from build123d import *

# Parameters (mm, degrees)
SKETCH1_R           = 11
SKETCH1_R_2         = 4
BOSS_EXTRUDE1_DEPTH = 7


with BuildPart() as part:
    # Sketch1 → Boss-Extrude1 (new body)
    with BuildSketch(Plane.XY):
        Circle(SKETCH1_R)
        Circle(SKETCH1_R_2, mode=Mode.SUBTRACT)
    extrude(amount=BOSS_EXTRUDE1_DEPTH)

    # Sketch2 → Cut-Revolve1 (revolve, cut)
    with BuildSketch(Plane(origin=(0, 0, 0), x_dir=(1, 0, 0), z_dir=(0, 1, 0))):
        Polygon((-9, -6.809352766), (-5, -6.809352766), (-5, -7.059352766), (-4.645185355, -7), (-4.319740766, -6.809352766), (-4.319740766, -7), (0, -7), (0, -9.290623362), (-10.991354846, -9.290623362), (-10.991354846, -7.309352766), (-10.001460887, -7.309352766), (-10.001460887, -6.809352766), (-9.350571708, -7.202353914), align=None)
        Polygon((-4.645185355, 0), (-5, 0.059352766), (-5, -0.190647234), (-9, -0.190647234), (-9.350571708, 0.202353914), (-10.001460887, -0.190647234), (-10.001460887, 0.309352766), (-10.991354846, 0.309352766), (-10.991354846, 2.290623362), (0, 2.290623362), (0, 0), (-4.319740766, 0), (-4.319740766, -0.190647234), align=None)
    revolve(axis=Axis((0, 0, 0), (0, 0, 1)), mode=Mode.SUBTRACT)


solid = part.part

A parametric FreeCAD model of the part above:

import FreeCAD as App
import Part
import Sketcher
from FreeCAD import Vector


def add_polygon(sketch, points):
    """Adds a closed chain of lines whose ends are joined by coincident constraints."""
    first, n = sketch.GeometryCount, len(points)
    for a, b in zip(points, points[1:] + points[:1]):
        sketch.addGeometry(Part.LineSegment(App.Vector(*a, 0), App.Vector(*b, 0)), False)
    for i in range(n):
        sketch.addConstraint(Sketcher.Constraint("Coincident", first + i, 2, first + (i + 1) % n, 1))

doc = App.newDocument("Part")
body = doc.addObject("PartDesign::Body", "Body")

# Sketch on XY plane
sketch1 = body.newObject("Sketcher::SketchObject", "Sketch")
sketch1.AttachmentSupport = (doc.getObject("XY_Plane"), [""])
sketch1.MapMode = "FlatFace"
sketch1.addGeometry([
    Part.Circle(Vector(0, 0, 0), Vector(0, 0, 1), 11),
    Part.Circle(Vector(0, 0, 0), Vector(0, 0, 1), 4),
], False)
sketch1.addConstraint([
    Sketcher.Constraint("Coincident", 0, 3, -1, 1),
    Sketcher.Constraint("Coincident", 1, 3, -1, 1),
    Sketcher.Constraint("Diameter", 0, 22.0),
    Sketcher.Constraint("Diameter", 1, 8.0),
])
pad1 = body.newObject("PartDesign::Pad", "Pad")
pad1.Profile = sketch1
pad1.Length = 7

# Sketch on XZ plane
sketch2 = body.newObject("Sketcher::SketchObject", "Sketch001")
sketch2.AttachmentSupport = (doc.getObject("XZ_Plane"), [""])
sketch2.MapMode = "FlatFace"
add_polygon(sketch2, [(-5, 6.81), (-9, 6.81), (-9.35, 7.2), (-10, 6.81), (-10, 7.31), (-10.99, 7.31), (-10.99, 9.29), (0, 9.29), (0, 7), (-4.32, 7), (-4.32, 6.81), (-4.65, 7), (-5, 7.06)])  # lines 0-12
add_polygon(sketch2, [(-5, -0.06), (-4.65, 0), (-4.32, 0.19), (-4.32, 0), (0, 0), (0, -2.29), (-10.99, -2.29), (-10.99, -0.31), (-10, -0.31), (-10, 0.19), (-9.35, -0.2), (-9, 0.19), (-5, 0.19)])  # lines 13-25
sketch2.addConstraint([
    Sketcher.Constraint("Horizontal", 0),
    Sketcher.Constraint("Vertical", 3),
    Sketcher.Constraint("Horizontal", 4),
    Sketcher.Constraint("Vertical", 5),
    Sketcher.Constraint("Horizontal", 6),
    Sketcher.Constraint("Vertical", 7),
    Sketcher.Constraint("Horizontal", 8),
    Sketcher.Constraint("Vertical", 9),
    Sketcher.Constraint("Vertical", 12),
    Sketcher.Constraint("Vertical", 15),
    Sketcher.Constraint("Horizontal", 16),
    Sketcher.Constraint("Vertical", 17),
    Sketcher.Constraint("Horizontal", 18),
    Sketcher.Constraint("Vertical", 19),
    Sketcher.Constraint("Horizontal", 20),
    Sketcher.Constraint("Vertical", 21),
    Sketcher.Constraint("Horizontal", 24),
    Sketcher.Constraint("Vertical", 25),
    Sketcher.Constraint("Coincident", 16, 2, -1, 1),
    Sketcher.Constraint("PointOnObject", 6, 2, -2),
    Sketcher.Constraint("PointOnObject", 13, 2, -1),
    Sketcher.Constraint("Horizontal", 0, 2, 2, 2),
    Sketcher.Constraint("Horizontal", 2, 2, 9, 2),
    Sketcher.Constraint("Horizontal", 8, 2, 10, 2),
    Sketcher.Constraint("Horizontal", 14, 2, 21, 2),
    Sketcher.Constraint("Horizontal", 21, 2, 23, 2),
    Sketcher.Constraint("Vertical", 10, 2, 13, 2),
    Sketcher.Constraint("Vertical", 9, 2, 14, 2),
    Sketcher.Constraint("Vertical", 5, 2, 18, 2),
    Sketcher.Constraint("Vertical", 3, 2, 20, 2),
    Sketcher.Constraint("Vertical", 1, 2, 22, 2),
    Sketcher.Constraint("Vertical", 0, 2, 23, 2),
    Sketcher.Constraint("Vertical", 12, 2, 24, 2),
    Sketcher.Constraint("Equal", 9, 15),
    Sketcher.Constraint("Equal", 7, 17),
    Sketcher.Constraint("Equal", 5, 19),
    Sketcher.Constraint("Equal", 12, 25),
    Sketcher.Constraint("Equal", 2, 22),
    Sketcher.Constraint("DistanceX", 0, 2, 0, 1, 4.0),
    Sketcher.Constraint("DistanceY", 3, 1, 3, 2, 0.5),
    Sketcher.Constraint("DistanceX", 0, 2, -1, 1, 9.0),
    Sketcher.Constraint("DistanceY", -1, 1, 7, 2, 7.0),
    Sketcher.Constraint("DistanceY", 12, 2, 12, 1, 0.25),
    Sketcher.Constraint("DistanceY", 0, 2, 1, 2, 0.393001),
    Sketcher.Constraint("DistanceX", 8, 2, 8, 1, 4.319741),
    Sketcher.Constraint("DistanceY", 5, 1, 5, 2, 1.981271),
    Sketcher.Constraint("Distance", 1, 0.526641),
    Sketcher.Constraint("DistanceX", 4, 2, 4, 1, 0.989894),
    Sketcher.Constraint("DistanceX", 6, 1, 6, 2, 10.991355),
    Sketcher.Constraint("DistanceY", 7, 2, 7, 1, 2.290623),
    Sketcher.Constraint("DistanceX", 18, 2, 13, 2, 6.346169),
])
groove = body.newObject("PartDesign::Groove", "Groove")
groove.Profile = sketch2
groove.ReferenceAxis = (sketch2, ["V_Axis"])
groove.Angle = 360

doc.recompute()
